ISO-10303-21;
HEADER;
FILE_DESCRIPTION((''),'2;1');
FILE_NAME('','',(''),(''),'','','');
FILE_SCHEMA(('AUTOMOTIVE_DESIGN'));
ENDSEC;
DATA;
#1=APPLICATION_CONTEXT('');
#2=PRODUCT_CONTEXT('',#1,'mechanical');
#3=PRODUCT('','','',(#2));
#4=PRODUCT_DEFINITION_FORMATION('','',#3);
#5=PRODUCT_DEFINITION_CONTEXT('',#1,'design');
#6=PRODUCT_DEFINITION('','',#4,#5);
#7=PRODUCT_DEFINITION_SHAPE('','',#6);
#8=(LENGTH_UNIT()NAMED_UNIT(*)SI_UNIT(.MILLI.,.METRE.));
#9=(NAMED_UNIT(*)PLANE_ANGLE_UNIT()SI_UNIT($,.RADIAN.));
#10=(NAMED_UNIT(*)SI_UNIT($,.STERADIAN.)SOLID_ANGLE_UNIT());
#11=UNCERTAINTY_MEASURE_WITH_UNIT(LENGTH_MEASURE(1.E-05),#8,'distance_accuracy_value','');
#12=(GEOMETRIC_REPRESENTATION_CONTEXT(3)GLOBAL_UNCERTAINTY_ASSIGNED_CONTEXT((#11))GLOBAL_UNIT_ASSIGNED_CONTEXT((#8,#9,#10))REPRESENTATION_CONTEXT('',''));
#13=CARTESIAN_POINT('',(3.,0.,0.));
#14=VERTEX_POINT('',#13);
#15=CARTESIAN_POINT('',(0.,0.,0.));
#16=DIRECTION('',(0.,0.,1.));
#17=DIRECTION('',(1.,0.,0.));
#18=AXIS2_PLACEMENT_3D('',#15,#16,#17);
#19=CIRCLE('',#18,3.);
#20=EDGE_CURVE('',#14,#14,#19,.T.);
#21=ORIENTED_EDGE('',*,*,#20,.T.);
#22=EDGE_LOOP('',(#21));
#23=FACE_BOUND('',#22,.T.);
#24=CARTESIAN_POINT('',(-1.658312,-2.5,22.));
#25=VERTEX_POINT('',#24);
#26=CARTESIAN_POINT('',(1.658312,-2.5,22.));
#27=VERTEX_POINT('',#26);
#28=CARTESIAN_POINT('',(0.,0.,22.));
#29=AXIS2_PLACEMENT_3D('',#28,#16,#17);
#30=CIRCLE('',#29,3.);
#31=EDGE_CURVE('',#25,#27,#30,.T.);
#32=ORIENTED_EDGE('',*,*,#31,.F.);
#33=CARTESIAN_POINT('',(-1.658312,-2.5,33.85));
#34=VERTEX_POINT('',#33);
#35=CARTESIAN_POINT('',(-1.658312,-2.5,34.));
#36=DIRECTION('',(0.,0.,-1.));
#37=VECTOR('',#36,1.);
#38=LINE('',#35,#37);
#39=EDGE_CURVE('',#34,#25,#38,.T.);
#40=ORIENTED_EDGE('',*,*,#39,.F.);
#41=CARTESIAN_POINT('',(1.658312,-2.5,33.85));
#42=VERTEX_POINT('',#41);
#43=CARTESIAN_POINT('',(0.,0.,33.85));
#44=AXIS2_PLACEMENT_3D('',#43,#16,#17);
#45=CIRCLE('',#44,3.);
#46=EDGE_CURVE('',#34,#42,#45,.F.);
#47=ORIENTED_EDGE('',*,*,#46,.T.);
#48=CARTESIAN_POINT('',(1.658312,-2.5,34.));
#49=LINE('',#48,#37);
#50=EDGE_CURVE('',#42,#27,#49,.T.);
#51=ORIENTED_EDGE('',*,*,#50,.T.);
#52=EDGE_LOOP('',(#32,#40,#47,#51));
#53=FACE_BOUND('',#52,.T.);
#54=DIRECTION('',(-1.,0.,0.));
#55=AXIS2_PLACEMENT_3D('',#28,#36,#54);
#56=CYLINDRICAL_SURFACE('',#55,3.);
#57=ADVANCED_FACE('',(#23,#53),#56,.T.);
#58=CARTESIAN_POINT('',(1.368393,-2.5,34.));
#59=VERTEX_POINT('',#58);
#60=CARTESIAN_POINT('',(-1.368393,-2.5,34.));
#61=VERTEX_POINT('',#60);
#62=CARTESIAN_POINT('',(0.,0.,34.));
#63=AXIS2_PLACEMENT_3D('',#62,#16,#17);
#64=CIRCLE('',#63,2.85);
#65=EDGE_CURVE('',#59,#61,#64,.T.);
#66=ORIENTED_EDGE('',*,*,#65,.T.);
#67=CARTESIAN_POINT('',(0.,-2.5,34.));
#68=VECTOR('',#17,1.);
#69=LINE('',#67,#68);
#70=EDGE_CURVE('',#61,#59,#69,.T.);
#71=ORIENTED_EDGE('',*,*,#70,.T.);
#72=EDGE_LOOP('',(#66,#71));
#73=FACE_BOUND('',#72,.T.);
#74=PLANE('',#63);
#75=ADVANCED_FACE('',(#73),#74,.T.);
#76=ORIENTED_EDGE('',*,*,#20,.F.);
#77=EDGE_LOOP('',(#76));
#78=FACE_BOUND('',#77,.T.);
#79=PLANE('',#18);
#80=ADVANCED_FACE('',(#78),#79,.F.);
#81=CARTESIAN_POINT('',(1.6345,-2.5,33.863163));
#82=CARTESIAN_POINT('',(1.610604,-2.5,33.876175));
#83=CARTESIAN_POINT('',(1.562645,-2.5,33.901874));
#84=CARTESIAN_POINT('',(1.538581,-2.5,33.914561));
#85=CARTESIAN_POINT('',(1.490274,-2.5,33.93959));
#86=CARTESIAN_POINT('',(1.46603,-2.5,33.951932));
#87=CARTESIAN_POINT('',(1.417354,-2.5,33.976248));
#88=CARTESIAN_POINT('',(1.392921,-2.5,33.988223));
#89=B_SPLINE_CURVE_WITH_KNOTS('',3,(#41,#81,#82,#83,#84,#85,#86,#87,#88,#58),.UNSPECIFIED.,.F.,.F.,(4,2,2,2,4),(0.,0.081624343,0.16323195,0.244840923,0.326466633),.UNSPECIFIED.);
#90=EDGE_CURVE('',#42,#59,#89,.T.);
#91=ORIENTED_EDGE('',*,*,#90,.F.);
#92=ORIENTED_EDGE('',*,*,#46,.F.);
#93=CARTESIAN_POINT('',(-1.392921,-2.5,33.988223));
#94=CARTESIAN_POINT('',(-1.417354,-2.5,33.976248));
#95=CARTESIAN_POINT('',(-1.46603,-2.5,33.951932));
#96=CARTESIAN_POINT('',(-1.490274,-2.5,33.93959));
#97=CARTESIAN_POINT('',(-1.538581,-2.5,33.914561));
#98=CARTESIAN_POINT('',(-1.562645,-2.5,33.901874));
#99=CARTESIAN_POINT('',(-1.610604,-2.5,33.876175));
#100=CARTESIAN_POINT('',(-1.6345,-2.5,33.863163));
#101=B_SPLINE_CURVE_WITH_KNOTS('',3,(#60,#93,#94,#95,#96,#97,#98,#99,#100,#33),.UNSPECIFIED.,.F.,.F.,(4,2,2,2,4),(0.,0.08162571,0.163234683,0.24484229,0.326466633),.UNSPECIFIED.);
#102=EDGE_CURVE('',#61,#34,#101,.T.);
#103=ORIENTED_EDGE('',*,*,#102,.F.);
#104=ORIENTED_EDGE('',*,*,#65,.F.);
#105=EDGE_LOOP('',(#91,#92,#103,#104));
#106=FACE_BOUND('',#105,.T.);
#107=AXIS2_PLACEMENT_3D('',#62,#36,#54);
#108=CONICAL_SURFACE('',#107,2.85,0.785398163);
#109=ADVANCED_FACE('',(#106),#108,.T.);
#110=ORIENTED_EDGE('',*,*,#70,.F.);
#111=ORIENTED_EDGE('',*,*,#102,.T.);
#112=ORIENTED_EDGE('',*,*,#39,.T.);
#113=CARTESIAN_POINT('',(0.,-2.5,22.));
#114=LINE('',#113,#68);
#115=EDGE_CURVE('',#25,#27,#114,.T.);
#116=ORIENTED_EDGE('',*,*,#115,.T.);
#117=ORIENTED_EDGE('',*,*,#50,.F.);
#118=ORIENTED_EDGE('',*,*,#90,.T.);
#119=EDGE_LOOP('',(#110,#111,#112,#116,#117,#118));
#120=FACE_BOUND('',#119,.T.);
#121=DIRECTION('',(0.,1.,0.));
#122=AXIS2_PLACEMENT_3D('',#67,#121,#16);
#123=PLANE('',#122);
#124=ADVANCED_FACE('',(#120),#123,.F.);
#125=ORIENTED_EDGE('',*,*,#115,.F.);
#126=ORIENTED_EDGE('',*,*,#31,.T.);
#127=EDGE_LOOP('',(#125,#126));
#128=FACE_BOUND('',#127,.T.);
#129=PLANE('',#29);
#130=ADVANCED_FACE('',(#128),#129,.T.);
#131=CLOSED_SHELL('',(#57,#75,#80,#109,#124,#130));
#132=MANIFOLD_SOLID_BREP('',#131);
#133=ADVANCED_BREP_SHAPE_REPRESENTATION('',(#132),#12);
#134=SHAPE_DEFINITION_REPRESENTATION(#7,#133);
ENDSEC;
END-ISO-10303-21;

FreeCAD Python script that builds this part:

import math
import FreeCAD as App
import Part
import Sketcher


def edges_at(feature, points):
    """Names of the edges that pass closest to the given points."""
    edges = feature.Shape.Edges
    near = lambda p: min(range(len(edges)), key=lambda i: edges[i].distToShape(Part.Vertex(*p))[0])
    return sorted({f"Edge{near(p) + 1}" for p in points})

doc = App.newDocument("Part")
body = doc.addObject("PartDesign::Body", "Body")

sketch1 = body.newObject("Sketcher::SketchObject", "Sketch")
sketch1.AttachmentSupport = (doc.getObject("XY_Plane"), [""])
sketch1.MapMode = "FlatFace"
sketch1.addGeometry(Part.Circle(App.Vector(0, 0, 0), App.Vector(0, 0, 1), 3), False)
sketch1.addConstraint(Sketcher.Constraint("Coincident", 0, 3, -1, 1))
sketch1.addConstraint(Sketcher.Constraint("Diameter", 0, 6.0))
pad1 = body.newObject("PartDesign::Pad", "Pad")
pad1.Profile = sketch1
pad1.Length = 22

sketch2 = body.newObject("Sketcher::SketchObject", "Sketch001")
sketch2.AttachmentSupport = (doc.getObject("XY_Plane"), [""])
sketch2.MapMode = "FlatFace"
sketch2.AttachmentOffset = App.Placement(App.Vector(0, 0, 22), App.Rotation())
sketch2.addGeometry(Part.ArcOfCircle(Part.Circle(App.Vector(0, 0, 0), App.Vector(0, 0, 1), 3), math.radians(-56), math.radians(236)), False)
sketch2.addGeometry(Part.LineSegment(App.Vector(-1.7, -2.5, 0), App.Vector(1.7, -2.5, 0)), False)
sketch2.addConstraint(Sketcher.Constraint("Coincident", 0, 1, 1, 2))
sketch2.addConstraint(Sketcher.Constraint("Coincident", 1, 1, 0, 2))
sketch2.addConstraint(Sketcher.Constraint("Horizontal", 1))
sketch2.addConstraint(Sketcher.Constraint("Coincident", 0, 3, -1, 1))
sketch2.addConstraint(Sketcher.Constraint("Radius", 0, 3.0))
sketch2.addConstraint(Sketcher.Constraint("DistanceY", 0, 1, -1, 1, 2.5))
pad2 = body.newObject("PartDesign::Pad", "Pad001")
pad2.Profile = sketch2
pad2.Length = 12
doc.recompute()

chamfer = body.newObject("PartDesign::Chamfer", "Chamfer")
chamfer.Base = (pad2, edges_at(pad2, [(0, 3, 34)]))
chamfer.Size = 0.15

doc.recompute()
